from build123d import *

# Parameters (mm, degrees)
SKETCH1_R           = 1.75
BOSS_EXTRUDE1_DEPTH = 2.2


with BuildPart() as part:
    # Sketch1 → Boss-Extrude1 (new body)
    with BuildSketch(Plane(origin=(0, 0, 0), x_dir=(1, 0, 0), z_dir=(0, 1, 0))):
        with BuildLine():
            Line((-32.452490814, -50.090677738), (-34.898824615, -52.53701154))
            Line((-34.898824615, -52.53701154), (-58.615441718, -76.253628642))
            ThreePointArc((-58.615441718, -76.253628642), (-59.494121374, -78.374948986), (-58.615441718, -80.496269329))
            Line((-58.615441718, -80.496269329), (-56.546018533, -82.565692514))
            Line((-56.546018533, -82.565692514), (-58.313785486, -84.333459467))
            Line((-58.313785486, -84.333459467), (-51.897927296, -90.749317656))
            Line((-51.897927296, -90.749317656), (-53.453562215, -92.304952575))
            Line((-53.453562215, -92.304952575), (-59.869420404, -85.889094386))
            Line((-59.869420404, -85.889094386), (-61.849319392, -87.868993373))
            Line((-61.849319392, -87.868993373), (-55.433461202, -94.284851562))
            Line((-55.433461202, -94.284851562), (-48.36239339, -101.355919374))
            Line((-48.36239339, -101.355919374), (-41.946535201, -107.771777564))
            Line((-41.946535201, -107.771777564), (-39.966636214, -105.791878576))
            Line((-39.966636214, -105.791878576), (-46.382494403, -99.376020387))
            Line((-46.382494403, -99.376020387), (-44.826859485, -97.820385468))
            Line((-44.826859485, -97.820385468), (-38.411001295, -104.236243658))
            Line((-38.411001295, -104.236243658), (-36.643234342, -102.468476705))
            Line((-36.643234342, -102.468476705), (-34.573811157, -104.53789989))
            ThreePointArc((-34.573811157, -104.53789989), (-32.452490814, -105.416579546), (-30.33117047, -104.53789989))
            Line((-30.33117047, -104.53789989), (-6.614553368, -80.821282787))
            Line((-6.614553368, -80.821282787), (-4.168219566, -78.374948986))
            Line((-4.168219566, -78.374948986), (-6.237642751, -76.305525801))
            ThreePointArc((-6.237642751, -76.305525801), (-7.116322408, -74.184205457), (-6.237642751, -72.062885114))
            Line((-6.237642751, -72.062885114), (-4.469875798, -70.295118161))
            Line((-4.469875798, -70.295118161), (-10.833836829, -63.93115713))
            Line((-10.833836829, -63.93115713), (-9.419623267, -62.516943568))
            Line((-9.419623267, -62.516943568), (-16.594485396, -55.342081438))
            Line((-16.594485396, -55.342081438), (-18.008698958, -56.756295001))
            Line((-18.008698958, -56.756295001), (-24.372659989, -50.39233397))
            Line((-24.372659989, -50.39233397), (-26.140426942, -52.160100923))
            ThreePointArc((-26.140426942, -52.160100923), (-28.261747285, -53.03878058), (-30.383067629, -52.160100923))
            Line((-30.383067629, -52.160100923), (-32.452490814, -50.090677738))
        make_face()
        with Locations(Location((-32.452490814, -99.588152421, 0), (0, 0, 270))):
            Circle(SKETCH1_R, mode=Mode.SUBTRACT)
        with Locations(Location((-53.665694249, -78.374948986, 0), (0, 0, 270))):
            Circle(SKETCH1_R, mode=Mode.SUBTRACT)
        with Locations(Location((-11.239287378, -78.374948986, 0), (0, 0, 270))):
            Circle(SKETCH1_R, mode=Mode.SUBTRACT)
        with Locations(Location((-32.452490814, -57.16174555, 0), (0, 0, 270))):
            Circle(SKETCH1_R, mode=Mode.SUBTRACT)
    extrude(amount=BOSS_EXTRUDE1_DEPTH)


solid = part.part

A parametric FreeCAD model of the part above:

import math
import FreeCAD as App
import Part
import Sketcher
Q = App.Units.Quantity

doc = App.newDocument("Part")
body = doc.addObject("PartDesign::Body", "Body")

# Sketch on XZ plane
sketch1 = body.newObject("Sketcher::SketchObject", "Sketch")
sketch1.AttachmentSupport = (doc.getObject("XZ_Plane"), [""])
sketch1.MapMode = "FlatFace"
sketch1.addGeometry([
    Part.LineSegment(App.Vector(-32.452491, 50.090678, 0), App.Vector(-34.898825, 52.537012, 0)),  # 0
    Part.LineSegment(App.Vector(-34.898825, 52.537012, 0), App.Vector(-58.615442, 76.253629, 0)),  # 1
    Part.ArcOfCircle(Part.Circle(App.Vector(-56.494121, 78.374949, 0), App.Vector(0, 0, 1), 3), math.radians(135), math.radians(225)),  # 2
    Part.LineSegment(App.Vector(-58.615442, 80.496269, 0), App.Vector(-56.546019, 82.565693, 0)),  # 3
    Part.LineSegment(App.Vector(-56.546019, 82.565693, 0), App.Vector(-58.313785, 84.333459, 0)),  # 4
    Part.LineSegment(App.Vector(-58.313785, 84.333459, 0), App.Vector(-51.897927, 90.749318, 0)),  # 5
    Part.LineSegment(App.Vector(-51.897927, 90.749318, 0), App.Vector(-53.453562, 92.304953, 0)),  # 6
    Part.LineSegment(App.Vector(-53.453562, 92.304953, 0), App.Vector(-59.86942, 85.889094, 0)),  # 7
    Part.LineSegment(App.Vector(-59.86942, 85.889094, 0), App.Vector(-61.849319, 87.868993, 0)),  # 8
    Part.LineSegment(App.Vector(-61.849319, 87.868993, 0), App.Vector(-55.433461, 94.284852, 0)),  # 9
    Part.LineSegment(App.Vector(-55.433461, 94.284852, 0), App.Vector(-48.362393, 101.355919, 0)),  # 10
    Part.LineSegment(App.Vector(-48.362393, 101.355919, 0), App.Vector(-41.946535, 107.771778, 0)),  # 11
    Part.LineSegment(App.Vector(-41.946535, 107.771778, 0), App.Vector(-39.966636, 105.791879, 0)),  # 12
    Part.LineSegment(App.Vector(-39.966636, 105.791879, 0), App.Vector(-46.382494, 99.37602, 0)),  # 13
    Part.LineSegment(App.Vector(-46.382494, 99.37602, 0), App.Vector(-44.826859, 97.820385, 0)),  # 14
    Part.LineSegment(App.Vector(-44.826859, 97.820385, 0), App.Vector(-38.411001, 104.236244, 0)),  # 15
    Part.LineSegment(App.Vector(-38.411001, 104.236244, 0), App.Vector(-36.643234, 102.468477, 0)),  # 16
    Part.LineSegment(App.Vector(-36.643234, 102.468477, 0), App.Vector(-34.573811, 104.5379, 0)),  # 17
    Part.ArcOfCircle(Part.Circle(App.Vector(-32.452491, 102.41658, 0), App.Vector(0, 0, 1), 3), math.radians(45), math.radians(135)),  # 18
    Part.LineSegment(App.Vector(-30.33117, 104.5379, 0), App.Vector(-6.614553, 80.821283, 0)),  # 19
    Part.LineSegment(App.Vector(-6.614553, 80.821283, 0), App.Vector(-4.16822, 78.374949, 0)),  # 20
    Part.LineSegment(App.Vector(-4.16822, 78.374949, 0), App.Vector(-6.237643, 76.305526, 0)),  # 21
    Part.ArcOfCircle(Part.Circle(App.Vector(-4.116322, 74.184205, 0), App.Vector(0, 0, 1), 3), math.radians(135), math.radians(225)),  # 22
    Part.LineSegment(App.Vector(-6.237643, 72.062885, 0), App.Vector(-4.469876, 70.295118, 0)),  # 23
    Part.LineSegment(App.Vector(-4.469876, 70.295118, 0), App.Vector(-10.833837, 63.931157, 0)),  # 24
    Part.LineSegment(App.Vector(-10.833837, 63.931157, 0), App.Vector(-9.419623, 62.516944, 0)),  # 25
    Part.LineSegment(App.Vector(-9.419623, 62.516944, 0), App.Vector(-16.594485, 55.342081, 0)),  # 26
    Part.LineSegment(App.Vector(-16.594485, 55.342081, 0), App.Vector(-18.008699, 56.756295, 0)),  # 27
    Part.LineSegment(App.Vector(-18.008699, 56.756295, 0), App.Vector(-24.37266, 50.392334, 0)),  # 28
    Part.LineSegment(App.Vector(-24.37266, 50.392334, 0), App.Vector(-26.140427, 52.160101, 0)),  # 29
    Part.ArcOfCircle(Part.Circle(App.Vector(-28.261747, 50.038781, 0), App.Vector(0, 0, 1), 3), math.radians(45), math.radians(135)),  # 30
    Part.LineSegment(App.Vector(-30.383068, 52.160101, 0), App.Vector(-32.452491, 50.090678, 0)),  # 31
    Part.Circle(App.Vector(-32.452491, 99.588152, 0), App.Vector(0, 0, 1), 1.75),  # 32
    Part.Circle(App.Vector(-53.665694, 78.374949, 0), App.Vector(0, 0, 1), 1.75),  # 33
    Part.Circle(App.Vector(-11.239287, 78.374949, 0), App.Vector(0, 0, 1), 1.75),  # 34
    Part.Circle(App.Vector(-32.452491, 57.161746, 0), App.Vector(0, 0, 1), 1.75),  # 35
], False)
sketch1.addConstraint([
    Sketcher.Constraint("Coincident", 0, 2, 1, 1),
    Sketcher.Constraint("Tangent", 1, 2, 2, 2),
    Sketcher.Constraint("Tangent", 2, 1, 3, 1),
    Sketcher.Constraint("Coincident", 3, 2, 4, 1),
    Sketcher.Constraint("Coincident", 4, 2, 5, 1),
    Sketcher.Constraint("Coincident", 5, 2, 6, 1),
    Sketcher.Constraint("Coincident", 6, 2, 7, 1),
    Sketcher.Constraint("Coincident", 7, 2, 8, 1),
    Sketcher.Constraint("Coincident", 8, 2, 9, 1),
    Sketcher.Constraint("Coincident", 9, 2, 10, 1),
    Sketcher.Constraint("Coincident", 10, 2, 11, 1),
    Sketcher.Constraint("Coincident", 11, 2, 12, 1),
    Sketcher.Constraint("Coincident", 12, 2, 13, 1),
    Sketcher.Constraint("Coincident", 13, 2, 14, 1),
    Sketcher.Constraint("Coincident", 14, 2, 15, 1),
    Sketcher.Constraint("Coincident", 15, 2, 16, 1),
    Sketcher.Constraint("Coincident", 16, 2, 17, 1),
    Sketcher.Constraint("Tangent", 17, 2, 18, 2),
    Sketcher.Constraint("Tangent", 18, 1, 19, 1),
    Sketcher.Constraint("Coincident", 19, 2, 20, 1),
    Sketcher.Constraint("Coincident", 20, 2, 21, 1),
    Sketcher.Constraint("Tangent", 21, 2, 22, 1),
    Sketcher.Constraint("Tangent", 22, 2, 23, 1),
    Sketcher.Constraint("Coincident", 23, 2, 24, 1),
    Sketcher.Constraint("Coincident", 24, 2, 25, 1),
    Sketcher.Constraint("Coincident", 25, 2, 26, 1),
    Sketcher.Constraint("Coincident", 26, 2, 27, 1),
    Sketcher.Constraint("Coincident", 27, 2, 28, 1),
    Sketcher.Constraint("Coincident", 28, 2, 29, 1),
    Sketcher.Constraint("Tangent", 29, 2, 30, 1),
    Sketcher.Constraint("Tangent", 30, 2, 31, 1),
    Sketcher.Constraint("Coincident", 31, 2, 0, 1),
    Sketcher.Constraint("Equal", 2, 18),
    Sketcher.Constraint("Equal", 18, 22),
    Sketcher.Constraint("Equal", 22, 30),
    Sketcher.Constraint("Equal", 32, 33),
    Sketcher.Constraint("Equal", 33, 34),
    Sketcher.Constraint("Equal", 34, 35),
    Sketcher.Constraint("Parallel", 0, 1),
    Sketcher.Constraint("Perpendicular", 1, 3),
    Sketcher.Constraint("Perpendicular", 3, 4),
    Sketcher.Constraint("Perpendicular", 4, 5),
    Sketcher.Constraint("Perpendicular", 5, 6),
    Sketcher.Constraint("Perpendicular", 6, 7),
    Sketcher.Constraint("Perpendicular", 7, 8),
    Sketcher.Constraint("Perpendicular", 8, 9),
    Sketcher.Constraint("Parallel", 9, 10),
    Sketcher.Constraint("Parallel", 10, 11),
    Sketcher.Constraint("Perpendicular", 11, 12),
    Sketcher.Constraint("Perpendicular", 12, 13),
    Sketcher.Constraint("Perpendicular", 13, 14),
    Sketcher.Constraint("Perpendicular", 14, 15),
    Sketcher.Constraint("Perpendicular", 15, 16),
    Sketcher.Constraint("Perpendicular", 16, 17),
    Sketcher.Constraint("Perpendicular", 17, 19),
    Sketcher.Constraint("Parallel", 19, 20),
    Sketcher.Constraint("Perpendicular", 20, 21),
    Sketcher.Constraint("Perpendicular", 21, 23),
    Sketcher.Constraint("Perpendicular", 23, 24),
    Sketcher.Constraint("Perpendicular", 24, 25),
    Sketcher.Constraint("Perpendicular", 25, 26),
    Sketcher.Constraint("Perpendicular", 26, 27),
    Sketcher.Constraint("Perpendicular", 27, 28),
    Sketcher.Constraint("Perpendicular", 28, 29),
    Sketcher.Constraint("Perpendicular", 29, 31),
    Sketcher.Constraint("Horizontal", 2, 3, 33, 3),
    Sketcher.Constraint("Horizontal", 33, 3, 34, 3),
    Sketcher.Constraint("Horizontal", 17, 2, 18, 1),
    Sketcher.Constraint("Horizontal", 34, 3, 20, 2),
    Sketcher.Constraint("Vertical", 18, 3, 32, 3),
    Sketcher.Constraint("Vertical", 32, 3, 35, 3),
    Sketcher.Constraint("Vertical", 35, 3, 31, 2),
    Sketcher.Constraint("Equal", 5, 7),
    Sketcher.Constraint("Equal", 7, 9),
    Sketcher.Constraint("Equal", 9, 11),
    Sketcher.Constraint("Equal", 8, 12),
    Sketcher.Constraint("Equal", 11, 13),
    Sketcher.Constraint("Equal", 6, 14),
    Sketcher.Constraint("Equal", 13, 15),
    Sketcher.Constraint("Equal", 4, 16),
    Sketcher.Constraint("Equal", 3, 17),
    Sketcher.Constraint("Equal", 1, 19),
    Sketcher.Constraint("Equal", 17, 21),
    Sketcher.Constraint("Equal", 16, 23),
    Sketcher.Constraint("Equal", 25, 27),
    Sketcher.Constraint("Equal", 24, 28),
    Sketcher.Constraint("Equal", 21, 31),
    Sketcher.Constraint("Radius", 2, Q("3 mm")),
    Sketcher.Constraint("Diameter", 32, Q("3.5 mm")),
    Sketcher.Constraint("Distance", 10, Q("10 mm")),
    Sketcher.Constraint("Distance", 24, Q("9 mm")),
    Sketcher.Constraint("Distance", 25, Q("2 mm")),
    Sketcher.Constraint("Distance", 4, Q("2.5 mm")),
    Sketcher.Constraint("Distance", 6, Q("2.2 mm")),
    Sketcher.Constraint("Distance", 8, Q("2.8 mm")),
    Sketcher.Constraint("DistanceX", 15, 2, -1, 1, Q("38.411001 mm")),
    Sketcher.Constraint("DistanceY", -1, 1, 17, 2, Q("104.5379 mm")),
    Sketcher.Constraint("DistanceX", 27, 2, -1, 1, Q("18.008699 mm")),
    Sketcher.Constraint("DistanceY", -1, 1, 29, 2, Q("52.160101 mm")),
    Sketcher.Constraint("Distance", 0, Q("3.459638 mm")),
    Sketcher.Constraint("DistanceY", 30, 3, 32, 3, Q("49.549372 mm")),
    Sketcher.Constraint("DistanceX", 33, 3, 22, 3, Q("49.549372 mm")),
    Sketcher.Constraint("DistanceX", 30, 3, 34, 3, Q("17.02246 mm")),
    Sketcher.Constraint("DistanceY", 35, 3, 22, 3, Q("17.02246 mm")),
])
pad1 = body.newObject("PartDesign::Pad", "Pad")
pad1.Profile = sketch1
pad1.Length = 2.2
pad1.Reversed = True

doc.recompute()
